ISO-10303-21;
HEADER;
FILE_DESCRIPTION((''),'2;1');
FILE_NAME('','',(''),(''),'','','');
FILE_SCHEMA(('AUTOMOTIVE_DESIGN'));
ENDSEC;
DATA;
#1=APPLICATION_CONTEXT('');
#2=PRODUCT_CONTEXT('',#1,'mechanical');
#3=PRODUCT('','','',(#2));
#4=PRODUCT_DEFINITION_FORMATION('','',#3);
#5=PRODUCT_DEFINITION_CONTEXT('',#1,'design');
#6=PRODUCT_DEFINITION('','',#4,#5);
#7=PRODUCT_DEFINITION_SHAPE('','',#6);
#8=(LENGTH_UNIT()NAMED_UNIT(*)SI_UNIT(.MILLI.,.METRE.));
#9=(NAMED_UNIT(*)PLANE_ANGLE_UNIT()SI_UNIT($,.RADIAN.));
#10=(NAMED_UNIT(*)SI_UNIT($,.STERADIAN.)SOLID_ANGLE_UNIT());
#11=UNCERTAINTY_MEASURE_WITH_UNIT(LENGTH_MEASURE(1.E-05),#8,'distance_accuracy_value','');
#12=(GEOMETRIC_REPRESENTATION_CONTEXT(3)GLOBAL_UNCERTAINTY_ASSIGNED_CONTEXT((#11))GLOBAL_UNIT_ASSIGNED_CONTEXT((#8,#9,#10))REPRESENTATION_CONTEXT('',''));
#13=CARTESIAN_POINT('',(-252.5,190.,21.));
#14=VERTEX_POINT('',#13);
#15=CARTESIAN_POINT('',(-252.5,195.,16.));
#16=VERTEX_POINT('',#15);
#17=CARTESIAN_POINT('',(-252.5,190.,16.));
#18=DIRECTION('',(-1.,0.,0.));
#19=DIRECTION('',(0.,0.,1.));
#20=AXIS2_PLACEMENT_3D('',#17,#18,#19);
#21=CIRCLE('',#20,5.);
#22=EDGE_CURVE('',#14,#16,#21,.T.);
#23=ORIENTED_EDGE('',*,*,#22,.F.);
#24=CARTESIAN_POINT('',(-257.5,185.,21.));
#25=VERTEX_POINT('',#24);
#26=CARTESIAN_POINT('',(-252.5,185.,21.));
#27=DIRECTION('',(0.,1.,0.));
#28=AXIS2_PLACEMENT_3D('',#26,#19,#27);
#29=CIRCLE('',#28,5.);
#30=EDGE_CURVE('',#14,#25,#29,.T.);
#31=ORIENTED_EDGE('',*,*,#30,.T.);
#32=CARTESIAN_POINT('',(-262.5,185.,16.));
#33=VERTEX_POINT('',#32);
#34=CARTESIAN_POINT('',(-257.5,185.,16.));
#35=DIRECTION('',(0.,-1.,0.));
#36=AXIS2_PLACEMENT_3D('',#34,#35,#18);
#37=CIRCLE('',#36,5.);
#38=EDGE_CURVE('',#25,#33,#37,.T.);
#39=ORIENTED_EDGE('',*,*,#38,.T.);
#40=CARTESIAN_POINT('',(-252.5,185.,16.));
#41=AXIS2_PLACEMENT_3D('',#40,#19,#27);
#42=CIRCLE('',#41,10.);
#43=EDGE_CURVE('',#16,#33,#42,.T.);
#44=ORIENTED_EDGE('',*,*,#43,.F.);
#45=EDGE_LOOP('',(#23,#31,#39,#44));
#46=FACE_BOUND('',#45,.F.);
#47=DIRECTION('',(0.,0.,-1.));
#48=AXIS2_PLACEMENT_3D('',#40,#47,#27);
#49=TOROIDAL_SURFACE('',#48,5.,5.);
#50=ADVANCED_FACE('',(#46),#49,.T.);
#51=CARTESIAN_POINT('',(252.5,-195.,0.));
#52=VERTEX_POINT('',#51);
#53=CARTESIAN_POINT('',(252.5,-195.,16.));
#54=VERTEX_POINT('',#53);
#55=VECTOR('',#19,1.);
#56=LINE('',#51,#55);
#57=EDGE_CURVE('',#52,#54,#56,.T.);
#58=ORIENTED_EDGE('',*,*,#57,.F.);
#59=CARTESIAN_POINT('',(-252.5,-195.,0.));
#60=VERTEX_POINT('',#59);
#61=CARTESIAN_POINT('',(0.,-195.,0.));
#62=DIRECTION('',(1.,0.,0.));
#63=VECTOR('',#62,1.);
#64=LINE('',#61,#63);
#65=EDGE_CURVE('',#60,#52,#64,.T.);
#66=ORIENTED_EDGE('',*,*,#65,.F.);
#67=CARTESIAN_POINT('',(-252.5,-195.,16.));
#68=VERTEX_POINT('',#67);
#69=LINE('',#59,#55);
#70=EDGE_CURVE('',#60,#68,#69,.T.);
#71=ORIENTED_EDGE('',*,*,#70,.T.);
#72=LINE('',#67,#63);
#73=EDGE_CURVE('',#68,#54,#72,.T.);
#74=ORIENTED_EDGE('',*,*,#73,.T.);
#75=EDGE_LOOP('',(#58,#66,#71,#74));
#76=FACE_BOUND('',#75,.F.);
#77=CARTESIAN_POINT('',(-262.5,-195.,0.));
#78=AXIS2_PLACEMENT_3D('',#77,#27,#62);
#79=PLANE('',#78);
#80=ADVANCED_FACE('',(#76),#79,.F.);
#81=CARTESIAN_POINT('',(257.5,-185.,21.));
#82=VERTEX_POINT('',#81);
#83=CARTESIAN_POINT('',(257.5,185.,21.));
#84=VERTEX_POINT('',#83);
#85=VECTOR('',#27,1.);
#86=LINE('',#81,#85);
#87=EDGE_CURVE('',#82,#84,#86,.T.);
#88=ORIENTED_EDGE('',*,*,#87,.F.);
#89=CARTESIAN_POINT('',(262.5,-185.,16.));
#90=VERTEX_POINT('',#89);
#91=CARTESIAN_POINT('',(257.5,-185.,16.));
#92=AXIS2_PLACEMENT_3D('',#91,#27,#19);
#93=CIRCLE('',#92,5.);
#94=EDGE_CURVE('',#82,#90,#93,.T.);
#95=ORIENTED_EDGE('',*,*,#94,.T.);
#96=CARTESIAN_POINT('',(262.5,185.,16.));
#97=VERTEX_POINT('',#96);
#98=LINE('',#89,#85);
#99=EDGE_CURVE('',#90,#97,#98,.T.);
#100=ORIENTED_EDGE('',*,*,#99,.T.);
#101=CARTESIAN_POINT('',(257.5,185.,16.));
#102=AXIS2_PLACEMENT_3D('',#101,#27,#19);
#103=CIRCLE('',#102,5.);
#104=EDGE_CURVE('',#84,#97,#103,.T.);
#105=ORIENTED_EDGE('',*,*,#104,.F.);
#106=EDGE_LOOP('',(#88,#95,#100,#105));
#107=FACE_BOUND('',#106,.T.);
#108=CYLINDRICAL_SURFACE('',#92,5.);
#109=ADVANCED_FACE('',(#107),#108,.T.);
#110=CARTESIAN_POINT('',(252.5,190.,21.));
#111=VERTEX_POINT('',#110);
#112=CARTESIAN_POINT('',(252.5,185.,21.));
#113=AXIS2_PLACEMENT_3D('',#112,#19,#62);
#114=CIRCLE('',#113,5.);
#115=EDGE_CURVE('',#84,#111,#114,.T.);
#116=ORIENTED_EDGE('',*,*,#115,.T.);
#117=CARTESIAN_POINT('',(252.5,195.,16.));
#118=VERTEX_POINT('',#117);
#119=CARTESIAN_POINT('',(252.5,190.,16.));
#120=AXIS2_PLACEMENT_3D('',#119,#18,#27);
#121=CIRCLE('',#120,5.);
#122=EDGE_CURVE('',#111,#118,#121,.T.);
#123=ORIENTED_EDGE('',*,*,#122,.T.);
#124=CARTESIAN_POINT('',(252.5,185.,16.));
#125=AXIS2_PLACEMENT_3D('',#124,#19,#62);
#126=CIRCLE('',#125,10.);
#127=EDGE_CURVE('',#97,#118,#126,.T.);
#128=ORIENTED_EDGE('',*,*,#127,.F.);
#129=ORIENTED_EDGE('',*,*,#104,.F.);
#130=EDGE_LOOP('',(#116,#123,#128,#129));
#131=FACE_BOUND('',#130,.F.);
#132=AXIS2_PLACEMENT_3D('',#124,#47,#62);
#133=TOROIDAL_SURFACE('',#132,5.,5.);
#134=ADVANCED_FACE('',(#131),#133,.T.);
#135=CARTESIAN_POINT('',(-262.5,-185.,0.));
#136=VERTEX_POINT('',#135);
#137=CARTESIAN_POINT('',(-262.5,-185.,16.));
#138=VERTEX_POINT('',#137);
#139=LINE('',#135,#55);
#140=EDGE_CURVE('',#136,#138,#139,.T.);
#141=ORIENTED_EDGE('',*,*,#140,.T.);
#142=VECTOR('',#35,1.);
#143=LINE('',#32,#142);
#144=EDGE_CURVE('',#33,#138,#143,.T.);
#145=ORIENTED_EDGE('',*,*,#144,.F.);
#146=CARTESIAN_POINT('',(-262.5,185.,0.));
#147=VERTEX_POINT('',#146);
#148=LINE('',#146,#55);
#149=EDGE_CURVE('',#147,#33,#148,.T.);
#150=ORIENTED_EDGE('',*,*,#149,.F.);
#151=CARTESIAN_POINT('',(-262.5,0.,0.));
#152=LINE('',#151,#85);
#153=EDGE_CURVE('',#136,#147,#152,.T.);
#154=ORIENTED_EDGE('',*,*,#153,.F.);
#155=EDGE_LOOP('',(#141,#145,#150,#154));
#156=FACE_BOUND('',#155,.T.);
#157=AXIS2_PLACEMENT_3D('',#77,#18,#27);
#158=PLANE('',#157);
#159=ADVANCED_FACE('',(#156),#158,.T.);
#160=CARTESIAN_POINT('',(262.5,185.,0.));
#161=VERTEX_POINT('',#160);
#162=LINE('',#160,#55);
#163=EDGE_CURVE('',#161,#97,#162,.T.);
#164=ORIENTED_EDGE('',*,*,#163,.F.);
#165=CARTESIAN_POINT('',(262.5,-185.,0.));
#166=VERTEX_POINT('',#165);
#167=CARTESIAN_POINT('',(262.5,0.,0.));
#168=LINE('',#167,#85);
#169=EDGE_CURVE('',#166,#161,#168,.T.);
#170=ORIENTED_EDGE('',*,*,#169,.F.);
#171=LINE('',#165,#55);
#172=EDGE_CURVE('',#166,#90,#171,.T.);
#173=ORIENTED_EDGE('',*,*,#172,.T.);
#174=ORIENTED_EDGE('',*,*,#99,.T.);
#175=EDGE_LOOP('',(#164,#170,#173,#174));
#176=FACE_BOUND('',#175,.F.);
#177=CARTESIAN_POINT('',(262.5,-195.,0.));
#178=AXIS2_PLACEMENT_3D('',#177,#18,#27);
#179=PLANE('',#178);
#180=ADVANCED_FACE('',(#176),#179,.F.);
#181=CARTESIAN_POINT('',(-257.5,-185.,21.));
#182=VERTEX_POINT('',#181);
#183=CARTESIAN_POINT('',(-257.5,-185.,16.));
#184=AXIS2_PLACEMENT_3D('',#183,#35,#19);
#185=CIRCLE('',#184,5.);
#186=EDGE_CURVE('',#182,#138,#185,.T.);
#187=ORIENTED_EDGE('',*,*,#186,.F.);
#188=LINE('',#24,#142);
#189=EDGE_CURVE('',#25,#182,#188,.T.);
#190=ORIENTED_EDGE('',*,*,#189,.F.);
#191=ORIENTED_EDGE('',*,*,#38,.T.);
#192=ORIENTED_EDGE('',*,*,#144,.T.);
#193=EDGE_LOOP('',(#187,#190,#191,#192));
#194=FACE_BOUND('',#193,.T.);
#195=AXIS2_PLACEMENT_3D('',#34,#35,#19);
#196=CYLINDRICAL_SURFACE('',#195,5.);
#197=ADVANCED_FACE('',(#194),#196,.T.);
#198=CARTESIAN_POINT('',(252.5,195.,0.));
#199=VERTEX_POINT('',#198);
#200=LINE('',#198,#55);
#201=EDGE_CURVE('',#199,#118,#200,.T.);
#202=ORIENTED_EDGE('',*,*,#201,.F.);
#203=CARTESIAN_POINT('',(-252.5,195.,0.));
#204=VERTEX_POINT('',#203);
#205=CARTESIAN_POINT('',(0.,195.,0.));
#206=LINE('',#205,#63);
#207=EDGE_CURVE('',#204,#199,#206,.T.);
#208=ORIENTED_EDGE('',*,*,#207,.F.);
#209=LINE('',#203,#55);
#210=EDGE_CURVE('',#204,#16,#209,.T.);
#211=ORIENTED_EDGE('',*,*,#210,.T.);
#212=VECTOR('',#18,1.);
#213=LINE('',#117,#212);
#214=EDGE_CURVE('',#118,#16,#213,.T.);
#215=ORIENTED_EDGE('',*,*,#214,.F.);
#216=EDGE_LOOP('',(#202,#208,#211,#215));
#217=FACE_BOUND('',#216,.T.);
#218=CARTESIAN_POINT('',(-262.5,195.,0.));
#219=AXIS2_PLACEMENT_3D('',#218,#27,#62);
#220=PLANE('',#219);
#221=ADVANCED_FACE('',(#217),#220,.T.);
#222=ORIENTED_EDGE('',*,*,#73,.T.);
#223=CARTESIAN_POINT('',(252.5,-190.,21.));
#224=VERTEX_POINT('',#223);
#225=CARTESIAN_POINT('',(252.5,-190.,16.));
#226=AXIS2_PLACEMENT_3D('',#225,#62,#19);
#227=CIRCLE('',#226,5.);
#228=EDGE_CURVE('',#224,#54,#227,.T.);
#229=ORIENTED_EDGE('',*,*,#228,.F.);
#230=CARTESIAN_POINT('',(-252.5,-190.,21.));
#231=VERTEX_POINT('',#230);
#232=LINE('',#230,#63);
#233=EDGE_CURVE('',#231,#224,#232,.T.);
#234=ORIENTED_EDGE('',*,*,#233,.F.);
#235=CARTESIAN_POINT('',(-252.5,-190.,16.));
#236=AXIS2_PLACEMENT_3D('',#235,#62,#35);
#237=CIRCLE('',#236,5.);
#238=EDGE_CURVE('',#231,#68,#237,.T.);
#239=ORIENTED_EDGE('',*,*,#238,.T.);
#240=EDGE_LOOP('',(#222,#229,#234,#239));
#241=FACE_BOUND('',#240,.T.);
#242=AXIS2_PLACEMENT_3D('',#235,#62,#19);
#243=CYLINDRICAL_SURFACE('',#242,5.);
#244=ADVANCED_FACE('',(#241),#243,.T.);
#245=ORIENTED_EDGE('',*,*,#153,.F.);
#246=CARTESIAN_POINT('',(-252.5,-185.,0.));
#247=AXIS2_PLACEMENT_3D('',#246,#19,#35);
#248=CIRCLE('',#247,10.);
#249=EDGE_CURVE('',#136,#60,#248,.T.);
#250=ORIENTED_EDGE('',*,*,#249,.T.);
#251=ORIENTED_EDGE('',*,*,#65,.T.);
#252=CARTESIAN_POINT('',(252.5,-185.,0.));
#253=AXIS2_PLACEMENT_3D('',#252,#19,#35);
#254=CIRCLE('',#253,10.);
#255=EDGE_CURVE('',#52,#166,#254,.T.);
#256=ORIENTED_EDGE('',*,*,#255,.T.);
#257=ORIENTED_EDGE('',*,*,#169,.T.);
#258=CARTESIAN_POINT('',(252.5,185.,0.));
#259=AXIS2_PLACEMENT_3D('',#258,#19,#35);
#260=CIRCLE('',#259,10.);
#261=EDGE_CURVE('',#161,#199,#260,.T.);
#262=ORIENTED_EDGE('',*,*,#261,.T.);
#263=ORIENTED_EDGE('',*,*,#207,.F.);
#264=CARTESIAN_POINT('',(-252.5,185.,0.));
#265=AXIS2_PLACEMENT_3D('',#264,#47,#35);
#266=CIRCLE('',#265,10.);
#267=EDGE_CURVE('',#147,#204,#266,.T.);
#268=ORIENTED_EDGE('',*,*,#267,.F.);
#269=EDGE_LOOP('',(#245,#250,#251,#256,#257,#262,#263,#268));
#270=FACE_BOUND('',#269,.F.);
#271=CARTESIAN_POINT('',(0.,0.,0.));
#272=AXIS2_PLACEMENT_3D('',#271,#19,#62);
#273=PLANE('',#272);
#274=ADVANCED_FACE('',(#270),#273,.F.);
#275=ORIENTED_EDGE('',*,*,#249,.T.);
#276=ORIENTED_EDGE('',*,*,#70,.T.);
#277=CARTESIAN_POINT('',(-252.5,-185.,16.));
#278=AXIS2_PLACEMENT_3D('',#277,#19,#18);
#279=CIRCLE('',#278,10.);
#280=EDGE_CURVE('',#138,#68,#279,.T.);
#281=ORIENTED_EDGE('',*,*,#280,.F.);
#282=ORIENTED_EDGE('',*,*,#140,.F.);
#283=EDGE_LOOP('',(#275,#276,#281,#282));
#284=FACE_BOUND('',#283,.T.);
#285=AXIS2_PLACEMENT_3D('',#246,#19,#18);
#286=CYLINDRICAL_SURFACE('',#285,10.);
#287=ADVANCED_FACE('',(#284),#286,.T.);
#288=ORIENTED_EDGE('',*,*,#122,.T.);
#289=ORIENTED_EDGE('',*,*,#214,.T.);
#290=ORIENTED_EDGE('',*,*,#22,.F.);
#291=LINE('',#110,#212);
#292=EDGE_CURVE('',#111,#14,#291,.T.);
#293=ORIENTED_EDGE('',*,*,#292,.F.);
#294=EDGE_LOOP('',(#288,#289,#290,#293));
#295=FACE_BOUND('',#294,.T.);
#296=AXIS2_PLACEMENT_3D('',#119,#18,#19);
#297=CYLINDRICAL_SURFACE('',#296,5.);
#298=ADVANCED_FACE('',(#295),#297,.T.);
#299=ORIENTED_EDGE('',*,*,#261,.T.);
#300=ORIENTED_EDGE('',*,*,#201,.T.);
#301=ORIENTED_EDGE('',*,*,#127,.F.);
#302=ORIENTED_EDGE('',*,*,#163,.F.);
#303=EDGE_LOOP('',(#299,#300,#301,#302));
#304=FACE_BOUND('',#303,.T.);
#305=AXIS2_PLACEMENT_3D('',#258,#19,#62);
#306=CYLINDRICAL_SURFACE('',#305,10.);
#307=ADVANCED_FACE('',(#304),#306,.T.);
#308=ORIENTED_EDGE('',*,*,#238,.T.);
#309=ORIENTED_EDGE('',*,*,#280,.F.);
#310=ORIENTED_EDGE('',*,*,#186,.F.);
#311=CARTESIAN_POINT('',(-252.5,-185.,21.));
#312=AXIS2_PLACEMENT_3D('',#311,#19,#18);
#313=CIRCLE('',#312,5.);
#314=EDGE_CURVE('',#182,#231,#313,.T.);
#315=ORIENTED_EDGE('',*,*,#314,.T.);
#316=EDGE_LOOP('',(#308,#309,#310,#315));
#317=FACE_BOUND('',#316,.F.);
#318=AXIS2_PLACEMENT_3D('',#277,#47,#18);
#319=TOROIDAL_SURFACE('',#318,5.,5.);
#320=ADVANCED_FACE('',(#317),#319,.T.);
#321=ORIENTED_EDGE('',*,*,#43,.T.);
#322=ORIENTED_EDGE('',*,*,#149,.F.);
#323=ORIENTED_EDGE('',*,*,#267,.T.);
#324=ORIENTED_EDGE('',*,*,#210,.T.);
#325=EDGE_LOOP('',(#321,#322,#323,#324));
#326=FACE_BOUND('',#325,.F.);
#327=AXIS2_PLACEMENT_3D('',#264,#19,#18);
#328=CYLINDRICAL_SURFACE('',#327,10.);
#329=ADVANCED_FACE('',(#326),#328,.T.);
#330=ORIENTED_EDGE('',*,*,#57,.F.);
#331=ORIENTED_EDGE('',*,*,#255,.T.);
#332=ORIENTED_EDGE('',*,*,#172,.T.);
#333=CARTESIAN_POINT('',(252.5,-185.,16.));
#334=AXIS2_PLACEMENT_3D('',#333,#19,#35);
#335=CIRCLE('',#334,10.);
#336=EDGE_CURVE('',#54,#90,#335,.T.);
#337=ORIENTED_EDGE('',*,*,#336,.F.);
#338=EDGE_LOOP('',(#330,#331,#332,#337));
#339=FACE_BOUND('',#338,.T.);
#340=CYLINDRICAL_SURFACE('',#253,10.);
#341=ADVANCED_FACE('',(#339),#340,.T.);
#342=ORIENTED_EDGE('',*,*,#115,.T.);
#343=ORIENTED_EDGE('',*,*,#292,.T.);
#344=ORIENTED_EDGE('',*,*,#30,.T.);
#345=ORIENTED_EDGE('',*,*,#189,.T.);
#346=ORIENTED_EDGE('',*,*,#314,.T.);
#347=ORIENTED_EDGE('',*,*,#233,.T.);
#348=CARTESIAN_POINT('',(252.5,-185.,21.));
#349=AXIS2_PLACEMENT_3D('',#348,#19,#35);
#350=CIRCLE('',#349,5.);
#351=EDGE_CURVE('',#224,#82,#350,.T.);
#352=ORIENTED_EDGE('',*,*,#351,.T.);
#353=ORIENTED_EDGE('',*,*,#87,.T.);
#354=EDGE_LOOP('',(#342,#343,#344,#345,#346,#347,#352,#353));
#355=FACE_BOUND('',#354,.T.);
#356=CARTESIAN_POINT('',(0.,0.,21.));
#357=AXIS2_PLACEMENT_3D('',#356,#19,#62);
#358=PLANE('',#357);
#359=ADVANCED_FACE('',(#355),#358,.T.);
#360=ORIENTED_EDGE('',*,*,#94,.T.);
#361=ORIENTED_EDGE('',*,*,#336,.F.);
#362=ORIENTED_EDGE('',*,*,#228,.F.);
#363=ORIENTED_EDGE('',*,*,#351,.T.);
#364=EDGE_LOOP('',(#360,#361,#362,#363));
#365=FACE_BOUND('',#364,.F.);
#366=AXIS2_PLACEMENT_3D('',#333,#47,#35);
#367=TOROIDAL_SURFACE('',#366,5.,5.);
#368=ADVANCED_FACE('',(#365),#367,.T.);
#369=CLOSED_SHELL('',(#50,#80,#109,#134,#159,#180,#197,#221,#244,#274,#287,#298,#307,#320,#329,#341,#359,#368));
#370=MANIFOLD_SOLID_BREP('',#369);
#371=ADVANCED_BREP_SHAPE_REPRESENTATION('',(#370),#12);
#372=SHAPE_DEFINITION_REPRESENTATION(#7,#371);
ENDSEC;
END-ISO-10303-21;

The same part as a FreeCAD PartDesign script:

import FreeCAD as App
import Part
import Sketcher

V = App.Vector


def edges_at(feature, points):
    """Names of the edges that pass closest to the given points."""
    edges = feature.Shape.Edges
    near = lambda p: min(range(len(edges)), key=lambda i: edges[i].distToShape(Part.Vertex(*p))[0])
    return sorted({f"Edge{near(p) + 1}" for p in points})

doc = App.newDocument("Part")
body = doc.addObject("PartDesign::Body", "Body")

# Sketch on XY plane
sketch1 = body.newObject("Sketcher::SketchObject", "Sketch")
sketch1.AttachmentSupport = (doc.getObject("XY_Plane"), [""])
sketch1.MapMode = "FlatFace"
sketch1.addGeometry([
    Part.LineSegment(V(-262, 195, 0), V(-262, -195, 0)),
    Part.LineSegment(V(-262, -195, 0), V(262, -195, 0)),
    Part.LineSegment(V(262, -195, 0), V(262, 195, 0)),
    Part.LineSegment(V(262, 195, 0), V(-262, 195, 0)),
], False)
sketch1.addConstraint([
    Sketcher.Constraint("Coincident", 0, 2, 1, 1),
    Sketcher.Constraint("Coincident", 1, 2, 2, 1),
    Sketcher.Constraint("Coincident", 2, 2, 3, 1),
    Sketcher.Constraint("Coincident", 3, 2, 0, 1),
    Sketcher.Constraint("Vertical", 0),
    Sketcher.Constraint("Horizontal", 1),
    Sketcher.Constraint("Vertical", 2),
    Sketcher.Constraint("Horizontal", 3),
    Sketcher.Constraint("Symmetric", 0, 2, 2, 2, -1, 1),
    Sketcher.Constraint("DistanceX", 1, 1, 1, 2, 525.0),
    Sketcher.Constraint("DistanceY", 0, 2, 0, 1, 390.0),
])
pad1 = body.newObject("PartDesign::Pad", "Pad")
pad1.Profile = sketch1
pad1.Length = 21
doc.recompute()

fillet = body.newObject("PartDesign::Fillet", "Fillet")
fillet.Base = (pad1, edges_at(pad1, [
    (262.5, -195, 10.5),
    (262.5, 195, 10.5),
    (-262.5, 195, 10.5),
    (-262.5, -195, 10.5),
]))
fillet.Radius = 10
doc.recompute()

fillet2 = body.newObject("PartDesign::Fillet", "Fillet001")
fillet2.Base = (fillet, edges_at(fillet, [(262.5, 0, 21)]))
fillet2.Radius = 5

doc.recompute()
